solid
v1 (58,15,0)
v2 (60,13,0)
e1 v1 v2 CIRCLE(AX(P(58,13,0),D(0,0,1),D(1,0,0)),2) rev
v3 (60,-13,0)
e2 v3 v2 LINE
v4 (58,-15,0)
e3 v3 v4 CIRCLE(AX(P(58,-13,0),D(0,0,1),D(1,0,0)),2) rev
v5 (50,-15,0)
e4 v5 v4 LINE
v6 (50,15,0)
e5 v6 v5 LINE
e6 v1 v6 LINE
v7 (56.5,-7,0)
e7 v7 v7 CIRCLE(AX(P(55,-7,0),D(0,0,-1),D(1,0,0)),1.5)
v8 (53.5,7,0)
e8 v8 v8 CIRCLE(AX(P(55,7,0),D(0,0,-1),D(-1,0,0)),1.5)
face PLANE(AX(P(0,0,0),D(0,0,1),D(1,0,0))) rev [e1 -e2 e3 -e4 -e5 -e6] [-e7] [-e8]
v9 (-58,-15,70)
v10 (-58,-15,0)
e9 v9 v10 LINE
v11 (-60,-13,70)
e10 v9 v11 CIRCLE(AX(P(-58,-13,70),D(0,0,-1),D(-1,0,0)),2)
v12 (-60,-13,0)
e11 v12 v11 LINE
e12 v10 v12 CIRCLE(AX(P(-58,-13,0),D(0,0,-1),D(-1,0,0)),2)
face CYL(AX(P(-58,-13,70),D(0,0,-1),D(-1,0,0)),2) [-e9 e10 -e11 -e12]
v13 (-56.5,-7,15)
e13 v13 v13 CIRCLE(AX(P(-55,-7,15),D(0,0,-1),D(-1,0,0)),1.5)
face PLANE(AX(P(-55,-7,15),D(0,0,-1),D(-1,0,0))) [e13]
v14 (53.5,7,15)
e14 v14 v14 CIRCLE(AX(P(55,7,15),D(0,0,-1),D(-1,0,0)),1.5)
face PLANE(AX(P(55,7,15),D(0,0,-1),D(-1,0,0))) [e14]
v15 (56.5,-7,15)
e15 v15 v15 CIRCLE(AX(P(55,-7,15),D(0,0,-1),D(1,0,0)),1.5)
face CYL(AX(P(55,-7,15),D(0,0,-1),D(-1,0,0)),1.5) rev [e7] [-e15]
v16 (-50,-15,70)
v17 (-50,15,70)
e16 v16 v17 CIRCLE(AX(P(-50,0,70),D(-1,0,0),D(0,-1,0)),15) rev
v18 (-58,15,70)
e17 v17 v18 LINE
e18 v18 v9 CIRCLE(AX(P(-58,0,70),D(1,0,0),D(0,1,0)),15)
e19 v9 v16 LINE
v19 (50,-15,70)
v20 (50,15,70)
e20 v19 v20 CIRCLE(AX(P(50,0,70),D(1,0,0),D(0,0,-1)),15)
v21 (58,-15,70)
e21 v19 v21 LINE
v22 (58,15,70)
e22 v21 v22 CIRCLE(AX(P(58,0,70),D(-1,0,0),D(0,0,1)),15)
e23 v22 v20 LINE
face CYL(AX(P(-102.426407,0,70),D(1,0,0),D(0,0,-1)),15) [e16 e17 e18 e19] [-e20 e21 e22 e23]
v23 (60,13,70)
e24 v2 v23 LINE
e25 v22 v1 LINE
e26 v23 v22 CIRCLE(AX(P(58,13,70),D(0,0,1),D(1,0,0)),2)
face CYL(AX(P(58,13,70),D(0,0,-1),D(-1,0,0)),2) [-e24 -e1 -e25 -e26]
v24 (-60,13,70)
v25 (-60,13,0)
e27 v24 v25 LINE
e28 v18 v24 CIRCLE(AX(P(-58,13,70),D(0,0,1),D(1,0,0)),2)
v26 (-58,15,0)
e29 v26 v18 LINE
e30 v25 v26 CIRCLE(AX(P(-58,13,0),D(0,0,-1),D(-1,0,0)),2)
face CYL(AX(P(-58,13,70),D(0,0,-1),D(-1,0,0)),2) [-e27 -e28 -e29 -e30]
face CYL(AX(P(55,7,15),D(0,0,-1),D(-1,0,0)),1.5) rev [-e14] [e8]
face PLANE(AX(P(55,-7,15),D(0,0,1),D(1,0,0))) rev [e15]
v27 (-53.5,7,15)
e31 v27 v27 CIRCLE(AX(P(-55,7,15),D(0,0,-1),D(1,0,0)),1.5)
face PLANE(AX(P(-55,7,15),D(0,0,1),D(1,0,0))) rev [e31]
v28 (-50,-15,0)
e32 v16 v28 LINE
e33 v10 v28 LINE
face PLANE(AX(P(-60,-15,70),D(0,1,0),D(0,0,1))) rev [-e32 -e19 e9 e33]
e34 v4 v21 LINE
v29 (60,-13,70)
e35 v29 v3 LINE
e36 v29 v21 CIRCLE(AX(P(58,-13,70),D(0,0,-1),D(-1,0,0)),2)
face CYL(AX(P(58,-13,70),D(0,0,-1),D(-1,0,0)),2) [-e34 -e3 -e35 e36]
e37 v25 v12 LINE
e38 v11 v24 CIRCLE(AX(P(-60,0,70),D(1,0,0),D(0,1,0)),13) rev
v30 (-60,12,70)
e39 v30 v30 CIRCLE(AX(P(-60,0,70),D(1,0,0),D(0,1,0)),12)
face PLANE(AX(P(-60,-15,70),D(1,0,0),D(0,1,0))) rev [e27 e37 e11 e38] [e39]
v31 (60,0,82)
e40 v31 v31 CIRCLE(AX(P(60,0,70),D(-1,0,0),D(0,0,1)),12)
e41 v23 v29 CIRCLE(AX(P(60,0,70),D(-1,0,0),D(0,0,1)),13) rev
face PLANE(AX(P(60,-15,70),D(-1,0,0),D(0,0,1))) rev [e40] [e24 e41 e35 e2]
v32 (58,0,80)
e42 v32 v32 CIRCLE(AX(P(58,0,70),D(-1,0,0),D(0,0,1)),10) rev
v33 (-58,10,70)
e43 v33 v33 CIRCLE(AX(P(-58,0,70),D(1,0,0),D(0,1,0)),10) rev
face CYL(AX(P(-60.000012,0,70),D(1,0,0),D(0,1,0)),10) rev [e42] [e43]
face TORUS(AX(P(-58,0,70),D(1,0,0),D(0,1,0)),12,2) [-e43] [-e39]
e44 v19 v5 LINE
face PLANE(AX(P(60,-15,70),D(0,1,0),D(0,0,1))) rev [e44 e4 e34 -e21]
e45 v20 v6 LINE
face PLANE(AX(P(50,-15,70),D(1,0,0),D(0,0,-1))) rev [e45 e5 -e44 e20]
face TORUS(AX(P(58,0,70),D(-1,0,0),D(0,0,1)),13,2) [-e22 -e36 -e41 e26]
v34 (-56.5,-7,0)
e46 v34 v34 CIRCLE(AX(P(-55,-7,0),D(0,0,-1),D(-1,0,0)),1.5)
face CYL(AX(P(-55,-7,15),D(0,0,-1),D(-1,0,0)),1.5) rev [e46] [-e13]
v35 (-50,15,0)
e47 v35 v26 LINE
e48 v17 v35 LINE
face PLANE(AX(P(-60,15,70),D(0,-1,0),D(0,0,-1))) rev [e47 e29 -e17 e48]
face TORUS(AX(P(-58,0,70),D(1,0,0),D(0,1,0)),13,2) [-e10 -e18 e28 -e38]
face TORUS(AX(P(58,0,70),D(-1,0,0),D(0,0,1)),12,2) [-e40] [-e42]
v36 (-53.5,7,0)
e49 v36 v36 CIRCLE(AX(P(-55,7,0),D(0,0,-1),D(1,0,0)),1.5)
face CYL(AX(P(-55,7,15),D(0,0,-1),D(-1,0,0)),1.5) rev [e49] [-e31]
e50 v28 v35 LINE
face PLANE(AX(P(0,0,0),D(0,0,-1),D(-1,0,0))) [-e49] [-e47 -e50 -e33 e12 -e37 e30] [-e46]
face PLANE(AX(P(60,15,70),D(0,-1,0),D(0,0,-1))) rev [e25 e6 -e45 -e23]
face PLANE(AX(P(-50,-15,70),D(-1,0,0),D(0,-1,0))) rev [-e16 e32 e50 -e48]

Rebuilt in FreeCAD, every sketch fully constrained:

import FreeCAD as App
import Part
import Sketcher

V = App.Vector


def edges_at(feature, points):
    """Names of the edges that pass closest to the given points."""
    edges = feature.Shape.Edges
    near = lambda p: min(range(len(edges)), key=lambda i: edges[i].distToShape(Part.Vertex(*p))[0])
    return sorted({f"Edge{near(p) + 1}" for p in points})


def add_polygon(sketch, points):
    """Adds a closed chain of lines whose ends are joined by coincident constraints."""
    first, n = sketch.GeometryCount, len(points)
    for a, b in zip(points, points[1:] + points[:1]):
        sketch.addGeometry(Part.LineSegment(App.Vector(*a, 0), App.Vector(*b, 0)), False)
    for i in range(n):
        sketch.addConstraint(Sketcher.Constraint("Coincident", first + i, 2, first + (i + 1) % n, 1))

doc = App.newDocument("Part")
body = doc.addObject("PartDesign::Body", "Body")

# Sketch on XY plane
sketch1 = doc.addObject("Sketcher::SketchObject", "Sketch")
body.addObject(sketch1)
sketch1.AttachmentSupport = (doc.XY_Plane, [""])
sketch1.MapMode = "FlatFace"
add_polygon(sketch1, [(50, 15), (50, -15), (60, -15), (60, 15)])  # lines 0-3
sketch1.addConstraint(Sketcher.Constraint("Vertical", 0))
sketch1.addConstraint(Sketcher.Constraint("Horizontal", 1))
sketch1.addConstraint(Sketcher.Constraint("Vertical", 2))
sketch1.addConstraint(Sketcher.Constraint("Horizontal", 3))
sketch1.addConstraint(Sketcher.Constraint("DistanceX", 1, 1, 1, 2, 10.0))
sketch1.addConstraint(Sketcher.Constraint("DistanceY", 0, 2, 0, 1, 30.0))
sketch1.addConstraint(Sketcher.Constraint("DistanceX", -1, 1, 0, 2, 50.0))
sketch1.addConstraint(Sketcher.Constraint("DistanceY", 0, 2, -1, 1, 15.0))
pad1 = doc.addObject("PartDesign::Pad", "Pad")
body.addObject(pad1)
pad1.Profile = sketch1
pad1.Length = 70
body2 = doc.addObject("PartDesign::Body", "Body001")

# Sketch on XY plane
sketch2 = doc.addObject("Sketcher::SketchObject", "Sketch001")
body2.addObject(sketch2)
sketch2.AttachmentSupport = (doc.getObject("XY_Plane001"), [""])
sketch2.MapMode = "FlatFace"
add_polygon(sketch2, [(-60, 15), (-60, -15), (-50, -15), (-50, 15)])  # lines 0-3
sketch2.addConstraint(Sketcher.Constraint("Vertical", 0))
sketch2.addConstraint(Sketcher.Constraint("Horizontal", 1))
sketch2.addConstraint(Sketcher.Constraint("Vertical", 2))
sketch2.addConstraint(Sketcher.Constraint("Horizontal", 3))
sketch2.addConstraint(Sketcher.Constraint("DistanceX", 1, 1, 1, 2, 10.0))
sketch2.addConstraint(Sketcher.Constraint("DistanceY", 0, 2, 0, 1, 30.0))
sketch2.addConstraint(Sketcher.Constraint("DistanceX", 0, 2, -1, 1, 60.0))
sketch2.addConstraint(Sketcher.Constraint("DistanceY", 0, 2, -1, 1, 15.0))
pad2 = doc.addObject("PartDesign::Pad", "Pad001")
body2.addObject(pad2)
pad2.Profile = sketch2
pad2.Length = 70
body.AllowCompound = True
doc.recompute()

boolean = doc.addObject("PartDesign::Boolean", "Boolean")
body.addObject(boolean)
boolean.Type = "Fuse"
boolean.addObjects([body2])

# Sketch on YZ plane
sketch3 = doc.addObject("Sketcher::SketchObject", "Sketch002")
body.addObject(sketch3)
sketch3.AttachmentSupport = (doc.YZ_Plane, [""])
sketch3.MapMode = "FlatFace"
sketch3.AttachmentOffset = App.Placement(V(0, 0, 60), App.Rotation())
sketch3.addGeometry(Part.Circle(V(0, 70, 0), V(0, 0, 1), 15), False)
sketch3.addConstraint(Sketcher.Constraint("PointOnObject", 0, 3, -2))
sketch3.addConstraint(Sketcher.Constraint("Diameter", 0, 30.0))
sketch3.addConstraint(Sketcher.Constraint("DistanceY", -1, 1, 0, 3, 70.0))
pad3 = doc.addObject("PartDesign::Pad", "Pad002")
body.addObject(pad3)
pad3.Profile = sketch3
pad3.Length = 120
pad3.Reversed = True

# Sketch on YZ plane
sketch4 = doc.addObject("Sketcher::SketchObject", "Sketch003")
body.addObject(sketch4)
sketch4.AttachmentSupport = (doc.YZ_Plane, [""])
sketch4.MapMode = "FlatFace"
sketch4.AttachmentOffset = App.Placement(V(0, 0, -60), App.Rotation())
sketch4.addGeometry(Part.Circle(V(0, 70, 0), V(0, 0, 1), 10), False)
sketch4.addConstraint(Sketcher.Constraint("PointOnObject", 0, 3, -2))
sketch4.addConstraint(Sketcher.Constraint("Diameter", 0, 20.0))
sketch4.addConstraint(Sketcher.Constraint("DistanceY", -1, 1, 0, 3, 70.0))
pocket1 = doc.addObject("PartDesign::Pocket", "Pocket")
body.addObject(pocket1)
pocket1.Profile = sketch4
pocket1.Type = "UpToFirst"
pocket1.Reversed = True

# Sketch on YZ plane
sketch5 = doc.addObject("Sketcher::SketchObject", "Sketch004")
body.addObject(sketch5)
sketch5.AttachmentSupport = (doc.YZ_Plane, [""])
sketch5.MapMode = "FlatFace"
sketch5.AttachmentOffset = App.Placement(V(0, 0, -60), App.Rotation())
sketch5.addGeometry(Part.Circle(V(0, 70, 0), V(0, 0, 1), 10), False)
sketch5.addConstraint(Sketcher.Constraint("PointOnObject", 0, 3, -2))
sketch5.addConstraint(Sketcher.Constraint("Diameter", 0, 20.0))
sketch5.addConstraint(Sketcher.Constraint("DistanceY", -1, 1, 0, 3, 70.0))
pocket2 = doc.addObject("PartDesign::Pocket", "Pocket001")
body.addObject(pocket2)
pocket2.Profile = sketch5
pocket2.Length = 1
doc.recompute()

fillet = doc.addObject("PartDesign::Fillet", "Fillet")
body.addObject(fillet)
fillet.Base = (pocket2, edges_at(pocket2, [
    (60, 0, 85),
    (-60, 0, 85),
    (-60, 15, 35),
    (-60, -15, 35),
    (-60, 0, 60),
    (60, 0, 60),
    (60, 15, 35),
    (60, -15, 35),
]))
fillet.Radius = 2

# Sketch on XY plane
sketch6 = doc.addObject("Sketcher::SketchObject", "Sketch005")
body.addObject(sketch6)
sketch6.AttachmentSupport = (doc.XY_Plane, [""])
sketch6.MapMode = "FlatFace"
sketch6.addGeometry(Part.Circle(V(55, 7, 0), V(0, 0, 1), 1.5), False)
sketch6.addGeometry(Part.Circle(V(55, -7, 0), V(0, 0, 1), 1.5), False)
sketch6.addGeometry(Part.Circle(V(-55, -7, 0), V(0, 0, 1), 1.5), False)
sketch6.addGeometry(Part.Circle(V(-55, 7, 0), V(0, 0, 1), 1.5), False)
sketch6.addConstraint(Sketcher.Constraint("Equal", 0, 1))
sketch6.addConstraint(Sketcher.Constraint("Equal", 1, 2))
sketch6.addConstraint(Sketcher.Constraint("Equal", 2, 3))
sketch6.addConstraint(Sketcher.Constraint("Symmetric", 0, 3, 2, 3, -1, 1))
sketch6.addConstraint(Sketcher.Constraint("Symmetric", 1, 3, 3, 3, -1, 1))
sketch6.addConstraint(Sketcher.Constraint("Symmetric", 1, 3, 2, 3, -2))
sketch6.addConstraint(Sketcher.Constraint("Diameter", 0, 3.0))
sketch6.addConstraint(Sketcher.Constraint("DistanceX", -1, 1, 0, 3, 55.0))
sketch6.addConstraint(Sketcher.Constraint("DistanceY", -1, 1, 0, 3, 7.0))
pocket3 = doc.addObject("PartDesign::Pocket", "Pocket002")
body.addObject(pocket3)
pocket3.Profile = sketch6
pocket3.Length = 15
pocket3.Reversed = True

doc.recompute()
